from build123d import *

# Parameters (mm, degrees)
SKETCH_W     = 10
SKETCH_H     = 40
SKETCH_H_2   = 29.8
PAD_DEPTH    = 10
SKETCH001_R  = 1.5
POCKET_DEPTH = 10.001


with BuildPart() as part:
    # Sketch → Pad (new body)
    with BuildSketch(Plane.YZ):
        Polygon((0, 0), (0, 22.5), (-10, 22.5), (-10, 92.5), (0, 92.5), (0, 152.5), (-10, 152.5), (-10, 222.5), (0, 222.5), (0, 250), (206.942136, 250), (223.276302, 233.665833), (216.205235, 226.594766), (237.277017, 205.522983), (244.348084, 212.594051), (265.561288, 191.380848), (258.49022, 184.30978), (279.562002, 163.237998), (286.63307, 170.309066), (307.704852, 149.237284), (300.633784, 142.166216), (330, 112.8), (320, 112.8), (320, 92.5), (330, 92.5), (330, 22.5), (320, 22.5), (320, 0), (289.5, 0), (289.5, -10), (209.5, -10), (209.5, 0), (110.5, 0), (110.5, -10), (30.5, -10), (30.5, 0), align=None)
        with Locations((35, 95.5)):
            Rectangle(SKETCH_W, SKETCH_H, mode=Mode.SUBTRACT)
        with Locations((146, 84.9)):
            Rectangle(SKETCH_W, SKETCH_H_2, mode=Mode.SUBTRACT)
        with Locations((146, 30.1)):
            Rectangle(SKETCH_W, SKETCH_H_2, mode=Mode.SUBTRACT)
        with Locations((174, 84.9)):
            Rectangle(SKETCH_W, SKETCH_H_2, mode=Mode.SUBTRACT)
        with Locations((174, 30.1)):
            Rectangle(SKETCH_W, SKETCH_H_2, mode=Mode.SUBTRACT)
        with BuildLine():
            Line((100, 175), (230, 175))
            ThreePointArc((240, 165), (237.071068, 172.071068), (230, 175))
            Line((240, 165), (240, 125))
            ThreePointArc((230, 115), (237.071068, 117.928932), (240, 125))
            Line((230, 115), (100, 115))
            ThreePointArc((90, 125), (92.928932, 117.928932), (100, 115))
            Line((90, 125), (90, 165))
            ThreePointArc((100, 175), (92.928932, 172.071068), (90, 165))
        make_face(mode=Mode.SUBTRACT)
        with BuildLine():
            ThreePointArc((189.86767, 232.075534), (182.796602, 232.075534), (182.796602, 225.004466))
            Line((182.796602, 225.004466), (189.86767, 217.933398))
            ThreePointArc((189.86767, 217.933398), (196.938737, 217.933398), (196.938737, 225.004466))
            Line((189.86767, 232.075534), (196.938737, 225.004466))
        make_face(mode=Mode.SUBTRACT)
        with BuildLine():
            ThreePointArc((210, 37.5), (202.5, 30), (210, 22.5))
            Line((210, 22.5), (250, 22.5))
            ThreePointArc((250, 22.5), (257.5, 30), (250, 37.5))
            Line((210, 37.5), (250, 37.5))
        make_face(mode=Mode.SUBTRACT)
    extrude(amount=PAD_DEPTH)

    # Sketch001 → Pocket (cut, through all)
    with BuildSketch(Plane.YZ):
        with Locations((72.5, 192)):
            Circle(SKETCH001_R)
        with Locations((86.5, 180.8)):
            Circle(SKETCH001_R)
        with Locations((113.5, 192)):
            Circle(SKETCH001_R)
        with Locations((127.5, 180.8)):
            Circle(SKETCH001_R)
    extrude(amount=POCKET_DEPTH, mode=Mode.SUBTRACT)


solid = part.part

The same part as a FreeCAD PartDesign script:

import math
import FreeCAD as App
import Part
import Sketcher
from FreeCAD import Vector
Q = App.Units.Quantity


def add_polygon(sketch, points):
    """Adds a closed chain of lines whose ends are joined by coincident constraints."""
    first, n = sketch.GeometryCount, len(points)
    for a, b in zip(points, points[1:] + points[:1]):
        sketch.addGeometry(Part.LineSegment(App.Vector(*a, 0), App.Vector(*b, 0)), False)
    for i in range(n):
        sketch.addConstraint(Sketcher.Constraint("Coincident", first + i, 2, first + (i + 1) % n, 1))

doc = App.newDocument("Part")
params = doc.addObject("Spreadsheet::Sheet", "Params")
for row, (alias, value) in enumerate([
    ("sketch1_radius", "9.999999 mm"),
    ("sketch1_radius2", "5 mm"),
    ("sketch1_radius3", "7.5 mm"),
    ("sketch1_width", "80 mm"),
    ("sketch1_width2", "99 mm"),
    ("pad1_length", "10 mm"),
    ("sketch2_diameter", "3 mm"),
], start=1):
    params.set(f"A{row}", alias)
    params.set(f"B{row}", "=" + value)
    params.setAlias(f"B{row}", alias)

body = doc.addObject("PartDesign::Body", "Body")

# Sketch on YZ plane
sketch1 = body.newObject("Sketcher::SketchObject", "Sketch")
sketch1.AttachmentSupport = (doc.getObject("YZ_Plane"), [""])
sketch1.MapMode = "FlatFace"
add_polygon(sketch1, [(0, 22.5), (0, 0), (30.5, 0), (30.5, -10), (110.5, -10), (110.5, 0), (209.5, 0), (209.5, -10), (289.5, -10), (289.5, 0), (320, 0), (320, 22.5), (330, 22.5), (330, 92.5), (320, 92.5), (320, 112.8), (330, 112.8), (300.6, 142.2), (307.7, 149.2), (286.6, 170.3), (279.6, 163.2), (258.5, 184.3), (265.6, 191.4), (244.3, 212.6), (237.3, 205.5), (216.2, 226.6), (223.3, 233.7), (206.9, 250), (0, 250), (0, 222.5), (-10, 222.5), (-10, 152.5), (0, 152.5), (0, 92.5), (-10, 92.5), (-10, 22.5)])  # lines 0-35
sketch1.addGeometry(Part.LineSegment(Vector(210, 37.5, 0), Vector(250, 37.5, 0)), False)  # 36
sketch1.addGeometry(Part.ArcOfCircle(Part.Circle(Vector(250, 30, 0), Vector(0, 0, 1), 7.5), math.radians(-90), math.radians(90)), False)  # 37
sketch1.addGeometry(Part.LineSegment(Vector(250, 22.5, 0), Vector(210, 22.5, 0)), False)  # 38
sketch1.addGeometry(Part.ArcOfCircle(Part.Circle(Vector(210, 30, 0), Vector(0, 0, 1), 7.5), math.radians(90), math.radians(270)), False)  # 39
add_polygon(sketch1, [(169, 15.2), (169, 45), (179, 45), (179, 15.2)])  # lines 40-43
add_polygon(sketch1, [(141, 15.2), (141, 45), (151, 45), (151, 15.2)])  # lines 44-47
add_polygon(sketch1, [(169, 70), (169, 99.8), (179, 99.8), (179, 70)])  # lines 48-51
add_polygon(sketch1, [(141, 70), (141, 99.8), (151, 99.8), (151, 70)])  # lines 52-55
add_polygon(sketch1, [(30, 75.5), (30, 115.5), (40, 115.5), (40, 75.5)])  # lines 56-59
sketch1.addGeometry(Part.LineSegment(Vector(100, 175, 0), Vector(230, 175, 0)), False)  # 60
sketch1.addGeometry(Part.ArcOfCircle(Part.Circle(Vector(230, 165, 0), Vector(0, 0, 1), 10), math.radians(0), math.radians(90)), False)  # 61
sketch1.addGeometry(Part.LineSegment(Vector(240, 165, 0), Vector(240, 125, 0)), False)  # 62
sketch1.addGeometry(Part.ArcOfCircle(Part.Circle(Vector(230, 125, 0), Vector(0, 0, 1), 10), math.radians(-90), math.radians(0)), False)  # 63
sketch1.addGeometry(Part.LineSegment(Vector(230, 115, 0), Vector(100, 115, 0)), False)  # 64
sketch1.addGeometry(Part.ArcOfCircle(Part.Circle(Vector(100, 125, 0), Vector(0, 0, 1), 10), math.radians(180), math.radians(270)), False)  # 65
sketch1.addGeometry(Part.LineSegment(Vector(90, 125, 0), Vector(90, 165, 0)), False)  # 66
sketch1.addGeometry(Part.ArcOfCircle(Part.Circle(Vector(100, 165, 0), Vector(0, 0, 1), 10), math.radians(90), math.radians(180)), False)  # 67
sketch1.addGeometry(Part.LineSegment(Vector(189.9, 232.1, 0), Vector(196.9, 225, 0)), False)  # 68
sketch1.addGeometry(Part.ArcOfCircle(Part.Circle(Vector(193.4, 221.5, 0), Vector(0, 0, 1), 5), math.radians(-135), math.radians(45)), False)  # 69
sketch1.addGeometry(Part.LineSegment(Vector(189.9, 217.9, 0), Vector(182.8, 225, 0)), False)  # 70
sketch1.addGeometry(Part.ArcOfCircle(Part.Circle(Vector(186.3, 228.5, 0), Vector(0, 0, 1), 5), math.radians(45), math.radians(225)), False)  # 71
sketch1.addConstraint([
    Sketcher.Constraint("Tangent", 36, 2, 37, 2),
    Sketcher.Constraint("Tangent", 37, 1, 38, 1),
    Sketcher.Constraint("Tangent", 38, 2, 39, 2),
    Sketcher.Constraint("Tangent", 39, 1, 36, 1),
    Sketcher.Constraint("Tangent", 60, 2, 61, 2),
    Sketcher.Constraint("Tangent", 61, 1, 62, 1),
    Sketcher.Constraint("Tangent", 62, 2, 63, 2),
    Sketcher.Constraint("Tangent", 63, 1, 64, 1),
    Sketcher.Constraint("Tangent", 64, 2, 65, 2),
    Sketcher.Constraint("Tangent", 65, 1, 66, 1),
    Sketcher.Constraint("Tangent", 66, 2, 67, 2),
    Sketcher.Constraint("Tangent", 67, 1, 60, 1),
    Sketcher.Constraint("Tangent", 68, 2, 69, 2),
    Sketcher.Constraint("Tangent", 69, 1, 70, 1),
    Sketcher.Constraint("Tangent", 70, 2, 71, 2),
    Sketcher.Constraint("Tangent", 71, 1, 68, 1),
    Sketcher.Constraint("Vertical", 0),
    Sketcher.Constraint("Horizontal", 1),
    Sketcher.Constraint("Vertical", 2),
    Sketcher.Constraint("Horizontal", 3),
    Sketcher.Constraint("Vertical", 4),
    Sketcher.Constraint("Horizontal", 5),
    Sketcher.Constraint("Vertical", 6),
    Sketcher.Constraint("Horizontal", 7),
    Sketcher.Constraint("Vertical", 8),
    Sketcher.Constraint("Horizontal", 9),
    Sketcher.Constraint("Vertical", 10),
    Sketcher.Constraint("Horizontal", 11),
    Sketcher.Constraint("Vertical", 12),
    Sketcher.Constraint("Horizontal", 13),
    Sketcher.Constraint("Vertical", 14),
    Sketcher.Constraint("Horizontal", 15),
    Sketcher.Constraint("Horizontal", 27),
    Sketcher.Constraint("Vertical", 28),
    Sketcher.Constraint("Horizontal", 29),
    Sketcher.Constraint("Vertical", 30),
    Sketcher.Constraint("Horizontal", 31),
    Sketcher.Constraint("Vertical", 32),
    Sketcher.Constraint("Horizontal", 33),
    Sketcher.Constraint("Vertical", 34),
    Sketcher.Constraint("Horizontal", 35),
    Sketcher.Constraint("Horizontal", 36),
    Sketcher.Constraint("Horizontal", 38),
    Sketcher.Constraint("Vertical", 40),
    Sketcher.Constraint("Horizontal", 41),
    Sketcher.Constraint("Vertical", 42),
    Sketcher.Constraint("Horizontal", 43),
    Sketcher.Constraint("Vertical", 44),
    Sketcher.Constraint("Horizontal", 45),
    Sketcher.Constraint("Vertical", 46),
    Sketcher.Constraint("Horizontal", 47),
    Sketcher.Constraint("Vertical", 48),
    Sketcher.Constraint("Horizontal", 49),
    Sketcher.Constraint("Vertical", 50),
    Sketcher.Constraint("Horizontal", 51),
    Sketcher.Constraint("Vertical", 52),
    Sketcher.Constraint("Horizontal", 53),
    Sketcher.Constraint("Vertical", 54),
    Sketcher.Constraint("Horizontal", 55),
    Sketcher.Constraint("Vertical", 56),
    Sketcher.Constraint("Horizontal", 57),
    Sketcher.Constraint("Vertical", 58),
    Sketcher.Constraint("Horizontal", 59),
    Sketcher.Constraint("Horizontal", 60),
    Sketcher.Constraint("Vertical", 62),
    Sketcher.Constraint("Horizontal", 64),
    Sketcher.Constraint("Vertical", 66),
    Sketcher.Constraint("Coincident", 0, 2, -1, 1),
    Sketcher.Constraint("Equal", 61, 63),
    Sketcher.Constraint("Equal", 63, 65),
    Sketcher.Constraint("Equal", 65, 67),
    Sketcher.Constraint("Equal", 69, 71),
    Sketcher.Constraint("PointOnObject", 4, 2, -1),
    Sketcher.Constraint("PointOnObject", 8, 2, -1),
    Sketcher.Constraint("PointOnObject", 27, 2, -2),
    Sketcher.Constraint("PointOnObject", 31, 2, -2),
    Sketcher.Constraint("Perpendicular", 16, 17),
    Sketcher.Constraint("Perpendicular", 17, 18),
    Sketcher.Constraint("Perpendicular", 18, 19),
    Sketcher.Constraint("Perpendicular", 19, 20),
    Sketcher.Constraint("Perpendicular", 20, 21),
    Sketcher.Constraint("Perpendicular", 21, 22),
    Sketcher.Constraint("Perpendicular", 22, 23),
    Sketcher.Constraint("Perpendicular", 23, 24),
    Sketcher.Constraint("Perpendicular", 24, 25),
    Sketcher.Constraint("Perpendicular", 25, 26),
    Sketcher.Constraint("Parallel", 26, 68),
    Sketcher.Constraint("Horizontal", 3, 2, 6, 2),
    Sketcher.Constraint("Horizontal", 13, 2, 32, 2),
    Sketcher.Constraint("Horizontal", 11, 2, 34, 2),
    Sketcher.Constraint("Horizontal", 35, 2, 37, 1),
    Sketcher.Constraint("Horizontal", 41, 2, 44, 2),
    Sketcher.Constraint("Horizontal", 43, 2, 46, 2),
    Sketcher.Constraint("Horizontal", 49, 2, 52, 2),
    Sketcher.Constraint("Horizontal", 51, 2, 54, 2),
    Sketcher.Constraint("Horizontal", 68, 2, 70, 2),
    Sketcher.Constraint("Vertical", 10, 2, 13, 2),
    Sketcher.Constraint("Vertical", 12, 2, 15, 2),
    Sketcher.Constraint("Vertical", 30, 2, 33, 2),
    Sketcher.Constraint("Vertical", 43, 2, 48, 2),
    Sketcher.Constraint("Vertical", 42, 2, 49, 2),
    Sketcher.Constraint("Vertical", 47, 2, 52, 2),
    Sketcher.Constraint("Vertical", 46, 2, 53, 2),
    Sketcher.Constraint("Vertical", 69, 1, 71, 1),
    Sketcher.Constraint("Equal", 3, 7),
    Sketcher.Constraint("Equal", 1, 9),
    Sketcher.Constraint("Equal", 15, 29),
    Sketcher.Constraint("Equal", 35, 41),
    Sketcher.Constraint("Equal", 43, 45),
    Sketcher.Constraint("Equal", 55, 57),
    Sketcher.Constraint("Equal", 59, 2),
    Sketcher.Constraint("Equal", 12, 30),
    Sketcher.Constraint("Equal", 46, 48),
    Sketcher.Constraint("Equal", 38, 56),
    Sketcher.Constraint("Equal", 58, 62),
    Sketcher.Constraint("Equal", 17, 19),
    Sketcher.Constraint("Equal", 18, 20),
    Sketcher.Constraint("Equal", 19, 21),
    Sketcher.Constraint("Equal", 21, 23),
    Sketcher.Constraint("Equal", 20, 24),
    Sketcher.Constraint("Equal", 23, 25),
    Sketcher.Constraint("Equal", 25, 68),
    Sketcher.Constraint("Radius", 61, Q("9.999999 mm")),
    Sketcher.Constraint("Radius", 69, Q("5 mm")),
    Sketcher.Constraint("Radius", 37, Q("7.5 mm")),
    Sketcher.Constraint("DistanceX", 3, 1, 3, 2, Q("80 mm")),
    Sketcher.Constraint("DistanceX", 5, 1, 5, 2, Q("99 mm")),
    Sketcher.Constraint("DistanceX", 11, 1, 11, 2, Q("10 mm")),
    Sketcher.Constraint("DistanceX", 36, 1, 36, 2, Q("40 mm")),
    Sketcher.Constraint("DistanceX", 60, 1, 60, 2, Q("130 mm")),
    Sketcher.Constraint("DistanceY", 12, 1, 12, 2, Q("70 mm")),
    Sketcher.Constraint("DistanceY", 32, 2, 32, 1, Q("60 mm")),
    Sketcher.Constraint("Distance", 22, Q("30 mm")),
    Sketcher.Constraint("DistanceX", 1, 1, 1, 2, Q("30.5 mm")),
    Sketcher.Constraint("DistanceY", 0, 2, 0, 1, Q("22.5 mm")),
    Sketcher.Constraint("DistanceY", 14, 1, 14, 2, Q("20.3 mm")),
    Sketcher.Constraint("DistanceY", 28, 2, 28, 1, Q("27.5 mm")),
    Sketcher.Constraint("DistanceY", 40, 1, 40, 2, Q("29.8 mm")),
    Sketcher.Constraint("DistanceX", -1, 1, 37, 3, Q("250 mm")),
    Sketcher.Constraint("DistanceX", -1, 1, 61, 3, Q("230.000001 mm")),
    Sketcher.Constraint("DistanceY", -1, 1, 61, 3, Q("165.000001 mm")),
    Sketcher.Constraint("DistanceX", -1, 1, 40, 2, Q("169 mm")),
    Sketcher.Constraint("DistanceY", -1, 1, 40, 2, Q("45 mm")),
    Sketcher.Constraint("DistanceX", -1, 1, 44, 2, Q("141 mm")),
    Sketcher.Constraint("DistanceY", -1, 1, 50, 2, Q("70 mm")),
    Sketcher.Constraint("DistanceX", -1, 1, 56, 2, Q("30 mm")),
    Sketcher.Constraint("Distance", 18, Q("29.8 mm")),
    Sketcher.Constraint("Distance", 26, Q("23.1 mm")),
    Sketcher.Constraint("DistanceY", -1, 1, 56, 2, Q("115.5 mm")),
    Sketcher.Constraint("DistanceY", -1, 1, 71, 3, Q("228.54 mm")),
    Sketcher.Constraint("DistanceX", -1, 1, 70, 2, Q("182.796602 mm")),
])
sketch1.setExpression("Constraints[178]", "Params.sketch1_radius")
sketch1.setExpression("Constraints[179]", "Params.sketch1_radius2")
sketch1.setExpression("Constraints[180]", "Params.sketch1_radius3")
sketch1.setExpression("Constraints[181]", "Params.sketch1_width")
sketch1.setExpression("Constraints[182]", "Params.sketch1_width2")
pad1 = body.newObject("PartDesign::Pad", "Pad")
pad1.Profile = sketch1
pad1.setExpression("Length", "Params.pad1_length")

# Sketch on YZ plane
sketch2 = body.newObject("Sketcher::SketchObject", "Sketch001")
sketch2.AttachmentSupport = (doc.getObject("YZ_Plane"), [""])
sketch2.MapMode = "FlatFace"
sketch2.addGeometry([
    Part.Circle(Vector(72.5, 192, 0), Vector(0, 0, 1), 1.5),
    Part.Circle(Vector(86.5, 180.8, 0), Vector(0, 0, 1), 1.5),
    Part.Circle(Vector(113.5, 192, 0), Vector(0, 0, 1), 1.5),
    Part.Circle(Vector(127.5, 180.8, 0), Vector(0, 0, 1), 1.5),
], False)
sketch2.addConstraint([
    Sketcher.Constraint("Equal", 0, 1),
    Sketcher.Constraint("Equal", 1, 2),
    Sketcher.Constraint("Equal", 2, 3),
    Sketcher.Constraint("Horizontal", 0, 3, 2, 3),
    Sketcher.Constraint("Horizontal", 1, 3, 3, 3),
    Sketcher.Constraint("Diameter", 0, Q("3 mm")),
    Sketcher.Constraint("DistanceY", -1, 1, 0, 3, Q("192 mm")),
    Sketcher.Constraint("DistanceX", 0, 3, 1, 3, Q("14 mm")),
    Sketcher.Constraint("DistanceX", 1, 3, 2, 3, Q("27 mm")),
    Sketcher.Constraint("DistanceX", 2, 3, 3, 3, Q("14 mm")),
    Sketcher.Constraint("DistanceX", -1, 1, 0, 3, Q("72.5 mm")),
    Sketcher.Constraint("DistanceY", -1, 1, 1, 3, Q("180.8 mm")),
])
sketch2.setExpression("Constraints[5]", "Params.sketch2_diameter")
pocket1 = body.newObject("PartDesign::Pocket", "Pocket")
pocket1.Profile = sketch2
pocket1.Type = "ThroughAll"
pocket1.Reversed = True

doc.recompute()
